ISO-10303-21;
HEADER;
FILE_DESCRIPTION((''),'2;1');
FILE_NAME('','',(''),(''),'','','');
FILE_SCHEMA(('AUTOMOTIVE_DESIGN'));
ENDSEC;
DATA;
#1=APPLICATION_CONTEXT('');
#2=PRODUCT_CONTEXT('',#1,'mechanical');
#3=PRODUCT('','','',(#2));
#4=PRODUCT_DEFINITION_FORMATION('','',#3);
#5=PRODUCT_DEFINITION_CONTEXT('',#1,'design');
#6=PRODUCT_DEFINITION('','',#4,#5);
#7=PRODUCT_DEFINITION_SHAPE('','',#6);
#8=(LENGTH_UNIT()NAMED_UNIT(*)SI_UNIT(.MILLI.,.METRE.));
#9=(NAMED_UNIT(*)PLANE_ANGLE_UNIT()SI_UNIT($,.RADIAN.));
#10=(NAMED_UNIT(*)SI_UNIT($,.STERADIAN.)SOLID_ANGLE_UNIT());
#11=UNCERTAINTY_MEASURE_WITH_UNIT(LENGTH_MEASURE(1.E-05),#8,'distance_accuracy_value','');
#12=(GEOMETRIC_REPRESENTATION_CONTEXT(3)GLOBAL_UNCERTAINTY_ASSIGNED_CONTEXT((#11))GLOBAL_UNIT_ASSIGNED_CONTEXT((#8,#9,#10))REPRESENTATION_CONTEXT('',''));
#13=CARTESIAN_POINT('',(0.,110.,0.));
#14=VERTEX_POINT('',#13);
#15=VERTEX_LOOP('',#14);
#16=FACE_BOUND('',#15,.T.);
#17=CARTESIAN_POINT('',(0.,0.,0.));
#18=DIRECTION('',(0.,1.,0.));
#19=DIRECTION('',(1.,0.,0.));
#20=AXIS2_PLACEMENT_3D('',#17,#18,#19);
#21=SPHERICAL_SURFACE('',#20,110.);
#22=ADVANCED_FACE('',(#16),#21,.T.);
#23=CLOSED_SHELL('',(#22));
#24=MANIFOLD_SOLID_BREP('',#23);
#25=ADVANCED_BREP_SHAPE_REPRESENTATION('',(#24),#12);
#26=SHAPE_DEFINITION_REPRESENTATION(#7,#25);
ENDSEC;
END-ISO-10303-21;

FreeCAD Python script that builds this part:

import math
import FreeCAD as App
import Part
import Sketcher
from FreeCAD import Vector
Q = App.Units.Quantity

doc = App.newDocument("Part")
body = doc.addObject("PartDesign::Body", "Body")

sketch1 = body.newObject("Sketcher::SketchObject", "Sketch")
sketch1.AttachmentSupport = (doc.getObject("XY_Plane"), [""])
sketch1.MapMode = "FlatFace"
sketch1.addGeometry([
    Part.LineSegment(Vector(0, 110, 0), Vector(0, -110, 0)),
    Part.ArcOfCircle(Part.Circle(Vector(0, 0, 0), Vector(0, 0, 1), 110), math.radians(-90), math.radians(90)),
], False)
sketch1.addConstraint([
    Sketcher.Constraint("Coincident", 0, 1, 1, 2),
    Sketcher.Constraint("Coincident", 1, 1, 0, 2),
    Sketcher.Constraint("Vertical", 0),
    Sketcher.Constraint("Coincident", 1, 3, -1, 1),
    Sketcher.Constraint("PointOnObject", 0, 1, -2),
    Sketcher.Constraint("Radius", 1, Q("110 mm")),
])
revolution = body.newObject("PartDesign::Revolution", "Revolution")
revolution.Profile = sketch1
revolution.ReferenceAxis = (sketch1, ["V_Axis"])
revolution.Angle = 360

doc.recompute()
